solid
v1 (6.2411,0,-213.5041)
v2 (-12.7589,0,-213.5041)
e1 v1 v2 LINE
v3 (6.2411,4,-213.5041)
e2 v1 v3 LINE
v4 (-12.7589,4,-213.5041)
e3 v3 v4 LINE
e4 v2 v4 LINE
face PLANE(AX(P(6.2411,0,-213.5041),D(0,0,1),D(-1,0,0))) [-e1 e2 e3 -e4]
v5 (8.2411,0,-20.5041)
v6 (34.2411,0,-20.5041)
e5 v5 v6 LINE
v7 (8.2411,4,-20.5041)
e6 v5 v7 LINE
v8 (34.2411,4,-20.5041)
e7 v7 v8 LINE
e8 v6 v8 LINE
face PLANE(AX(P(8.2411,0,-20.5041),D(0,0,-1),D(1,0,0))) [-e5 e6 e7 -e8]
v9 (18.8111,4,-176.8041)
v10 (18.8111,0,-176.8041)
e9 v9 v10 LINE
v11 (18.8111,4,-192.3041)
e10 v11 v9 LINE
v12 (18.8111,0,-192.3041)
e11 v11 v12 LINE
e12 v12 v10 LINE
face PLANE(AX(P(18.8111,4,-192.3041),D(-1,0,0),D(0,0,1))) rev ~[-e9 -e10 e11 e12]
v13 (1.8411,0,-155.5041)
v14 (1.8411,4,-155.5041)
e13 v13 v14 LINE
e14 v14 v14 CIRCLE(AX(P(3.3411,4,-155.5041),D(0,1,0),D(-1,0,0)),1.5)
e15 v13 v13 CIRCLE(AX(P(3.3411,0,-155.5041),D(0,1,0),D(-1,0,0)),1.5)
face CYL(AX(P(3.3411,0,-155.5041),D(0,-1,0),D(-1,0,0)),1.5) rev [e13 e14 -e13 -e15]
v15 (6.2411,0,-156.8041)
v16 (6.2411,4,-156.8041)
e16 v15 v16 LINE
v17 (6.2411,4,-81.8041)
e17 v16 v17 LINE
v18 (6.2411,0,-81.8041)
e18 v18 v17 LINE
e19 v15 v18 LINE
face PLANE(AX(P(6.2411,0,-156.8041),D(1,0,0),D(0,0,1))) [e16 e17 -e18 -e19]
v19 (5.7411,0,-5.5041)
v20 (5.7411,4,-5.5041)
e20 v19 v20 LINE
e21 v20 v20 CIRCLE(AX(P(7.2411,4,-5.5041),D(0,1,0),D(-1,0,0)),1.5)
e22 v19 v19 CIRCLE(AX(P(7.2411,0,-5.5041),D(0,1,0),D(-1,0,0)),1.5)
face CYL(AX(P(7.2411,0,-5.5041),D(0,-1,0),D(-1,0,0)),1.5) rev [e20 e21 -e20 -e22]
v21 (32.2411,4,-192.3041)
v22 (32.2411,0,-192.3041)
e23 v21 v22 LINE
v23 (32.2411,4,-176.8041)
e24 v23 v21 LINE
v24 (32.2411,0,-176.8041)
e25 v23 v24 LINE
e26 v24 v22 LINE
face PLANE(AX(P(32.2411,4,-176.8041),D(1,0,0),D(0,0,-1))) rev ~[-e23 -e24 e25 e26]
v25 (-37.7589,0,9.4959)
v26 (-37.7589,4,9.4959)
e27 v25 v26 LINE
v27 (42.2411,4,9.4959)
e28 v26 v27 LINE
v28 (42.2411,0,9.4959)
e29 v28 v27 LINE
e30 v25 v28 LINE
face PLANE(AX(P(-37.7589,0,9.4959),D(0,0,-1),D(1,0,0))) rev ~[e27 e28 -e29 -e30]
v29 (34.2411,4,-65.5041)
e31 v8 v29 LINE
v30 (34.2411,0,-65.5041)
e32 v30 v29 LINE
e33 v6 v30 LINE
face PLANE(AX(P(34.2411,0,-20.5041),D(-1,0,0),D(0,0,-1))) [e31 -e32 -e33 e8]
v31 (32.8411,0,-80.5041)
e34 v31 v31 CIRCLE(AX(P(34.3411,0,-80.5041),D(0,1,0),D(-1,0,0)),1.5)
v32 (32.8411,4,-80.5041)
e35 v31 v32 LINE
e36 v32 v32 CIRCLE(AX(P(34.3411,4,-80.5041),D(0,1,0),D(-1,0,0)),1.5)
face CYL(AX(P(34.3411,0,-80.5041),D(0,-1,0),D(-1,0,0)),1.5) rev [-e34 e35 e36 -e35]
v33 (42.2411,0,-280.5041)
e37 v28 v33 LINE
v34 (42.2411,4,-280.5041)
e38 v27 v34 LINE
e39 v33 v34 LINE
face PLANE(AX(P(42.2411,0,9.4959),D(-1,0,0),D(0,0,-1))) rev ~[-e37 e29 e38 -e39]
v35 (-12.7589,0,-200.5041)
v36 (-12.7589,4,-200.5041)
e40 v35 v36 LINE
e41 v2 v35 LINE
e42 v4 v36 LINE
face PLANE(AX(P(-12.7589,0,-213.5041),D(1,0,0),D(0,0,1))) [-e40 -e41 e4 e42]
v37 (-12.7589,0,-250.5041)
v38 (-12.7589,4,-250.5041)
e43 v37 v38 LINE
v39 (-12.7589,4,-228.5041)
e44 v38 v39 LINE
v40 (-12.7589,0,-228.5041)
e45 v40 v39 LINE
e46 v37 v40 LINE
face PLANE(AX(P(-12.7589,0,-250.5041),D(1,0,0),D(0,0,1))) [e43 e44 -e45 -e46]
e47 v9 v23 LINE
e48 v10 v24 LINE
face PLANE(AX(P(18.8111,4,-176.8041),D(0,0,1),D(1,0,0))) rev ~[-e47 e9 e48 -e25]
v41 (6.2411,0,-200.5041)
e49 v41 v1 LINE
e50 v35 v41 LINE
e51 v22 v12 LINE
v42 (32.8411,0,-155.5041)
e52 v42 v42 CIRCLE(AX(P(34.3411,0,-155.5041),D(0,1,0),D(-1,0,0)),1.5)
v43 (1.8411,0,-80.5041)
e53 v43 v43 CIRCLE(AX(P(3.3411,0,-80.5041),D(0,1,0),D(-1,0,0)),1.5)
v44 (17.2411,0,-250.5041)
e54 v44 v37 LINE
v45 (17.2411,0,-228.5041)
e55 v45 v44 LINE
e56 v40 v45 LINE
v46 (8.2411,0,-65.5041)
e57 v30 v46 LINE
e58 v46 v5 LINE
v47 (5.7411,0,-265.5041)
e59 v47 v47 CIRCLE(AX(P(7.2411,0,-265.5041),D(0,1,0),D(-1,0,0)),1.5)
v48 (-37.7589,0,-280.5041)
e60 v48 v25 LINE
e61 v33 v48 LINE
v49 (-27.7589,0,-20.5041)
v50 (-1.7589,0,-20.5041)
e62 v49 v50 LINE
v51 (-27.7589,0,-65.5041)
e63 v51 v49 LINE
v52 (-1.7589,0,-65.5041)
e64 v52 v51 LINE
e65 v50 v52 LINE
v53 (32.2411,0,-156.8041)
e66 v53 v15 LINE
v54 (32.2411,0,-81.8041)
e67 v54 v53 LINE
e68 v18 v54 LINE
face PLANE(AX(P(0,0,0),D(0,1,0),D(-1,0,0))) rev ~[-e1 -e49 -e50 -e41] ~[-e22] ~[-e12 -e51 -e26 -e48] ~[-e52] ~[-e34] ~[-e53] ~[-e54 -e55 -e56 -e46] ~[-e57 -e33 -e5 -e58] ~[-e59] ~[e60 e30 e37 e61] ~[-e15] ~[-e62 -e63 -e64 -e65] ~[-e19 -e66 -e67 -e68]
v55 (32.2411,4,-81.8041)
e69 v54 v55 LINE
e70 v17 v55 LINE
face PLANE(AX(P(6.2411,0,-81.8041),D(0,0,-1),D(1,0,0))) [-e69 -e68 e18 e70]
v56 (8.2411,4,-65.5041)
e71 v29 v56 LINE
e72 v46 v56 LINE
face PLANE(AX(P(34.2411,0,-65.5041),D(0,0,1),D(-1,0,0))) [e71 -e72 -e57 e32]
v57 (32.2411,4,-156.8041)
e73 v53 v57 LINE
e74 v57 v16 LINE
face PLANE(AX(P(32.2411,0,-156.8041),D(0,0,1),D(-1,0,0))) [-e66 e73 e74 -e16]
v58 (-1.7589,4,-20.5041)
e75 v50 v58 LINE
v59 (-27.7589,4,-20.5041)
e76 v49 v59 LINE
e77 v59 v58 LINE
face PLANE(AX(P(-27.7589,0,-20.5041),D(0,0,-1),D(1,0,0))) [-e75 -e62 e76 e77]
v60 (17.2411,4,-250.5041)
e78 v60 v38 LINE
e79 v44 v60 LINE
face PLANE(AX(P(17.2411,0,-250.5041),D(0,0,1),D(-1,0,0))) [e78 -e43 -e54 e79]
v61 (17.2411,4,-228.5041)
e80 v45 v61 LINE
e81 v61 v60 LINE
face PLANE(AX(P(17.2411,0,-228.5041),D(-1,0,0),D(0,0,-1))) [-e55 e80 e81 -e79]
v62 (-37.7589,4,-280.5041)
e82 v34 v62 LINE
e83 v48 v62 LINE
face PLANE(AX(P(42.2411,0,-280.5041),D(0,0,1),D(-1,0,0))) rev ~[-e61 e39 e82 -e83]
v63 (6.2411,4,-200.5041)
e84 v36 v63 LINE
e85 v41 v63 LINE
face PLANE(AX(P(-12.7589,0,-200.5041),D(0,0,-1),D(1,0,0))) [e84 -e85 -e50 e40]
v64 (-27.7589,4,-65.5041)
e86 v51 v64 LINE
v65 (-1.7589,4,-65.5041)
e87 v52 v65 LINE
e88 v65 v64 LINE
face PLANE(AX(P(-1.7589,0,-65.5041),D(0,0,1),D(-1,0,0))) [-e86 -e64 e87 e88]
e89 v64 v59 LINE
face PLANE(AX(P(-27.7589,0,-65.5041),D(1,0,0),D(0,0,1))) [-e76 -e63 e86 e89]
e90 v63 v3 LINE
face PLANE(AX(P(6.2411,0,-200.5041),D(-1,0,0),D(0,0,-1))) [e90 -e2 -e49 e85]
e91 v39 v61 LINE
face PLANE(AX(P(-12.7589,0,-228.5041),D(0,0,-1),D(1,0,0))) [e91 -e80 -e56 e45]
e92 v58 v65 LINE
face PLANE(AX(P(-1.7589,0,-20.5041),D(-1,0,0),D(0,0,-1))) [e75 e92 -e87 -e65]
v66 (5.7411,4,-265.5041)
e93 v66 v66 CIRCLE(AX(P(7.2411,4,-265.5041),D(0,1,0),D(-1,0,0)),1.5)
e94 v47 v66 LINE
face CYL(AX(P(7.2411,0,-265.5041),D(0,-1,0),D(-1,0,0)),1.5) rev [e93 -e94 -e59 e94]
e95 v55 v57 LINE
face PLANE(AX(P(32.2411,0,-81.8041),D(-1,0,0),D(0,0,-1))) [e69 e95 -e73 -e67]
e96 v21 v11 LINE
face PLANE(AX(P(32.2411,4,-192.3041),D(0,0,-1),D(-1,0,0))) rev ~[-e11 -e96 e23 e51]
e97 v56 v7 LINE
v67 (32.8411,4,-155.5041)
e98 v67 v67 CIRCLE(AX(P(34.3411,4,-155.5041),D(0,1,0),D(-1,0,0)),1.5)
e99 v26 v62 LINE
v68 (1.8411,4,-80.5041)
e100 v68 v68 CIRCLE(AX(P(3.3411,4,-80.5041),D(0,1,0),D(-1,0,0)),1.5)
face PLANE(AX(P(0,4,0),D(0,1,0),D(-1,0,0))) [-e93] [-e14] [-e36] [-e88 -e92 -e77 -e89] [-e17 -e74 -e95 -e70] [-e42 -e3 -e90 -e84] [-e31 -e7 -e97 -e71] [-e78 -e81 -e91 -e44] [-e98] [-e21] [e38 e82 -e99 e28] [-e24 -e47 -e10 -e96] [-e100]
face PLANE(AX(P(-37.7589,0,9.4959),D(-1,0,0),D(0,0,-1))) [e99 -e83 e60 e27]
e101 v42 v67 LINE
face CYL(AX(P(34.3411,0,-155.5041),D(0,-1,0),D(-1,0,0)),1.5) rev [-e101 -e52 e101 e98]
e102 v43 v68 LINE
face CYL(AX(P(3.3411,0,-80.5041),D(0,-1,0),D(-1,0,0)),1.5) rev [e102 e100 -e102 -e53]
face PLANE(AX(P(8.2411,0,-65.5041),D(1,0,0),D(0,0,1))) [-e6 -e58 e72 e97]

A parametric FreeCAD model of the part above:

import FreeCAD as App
import Part
import Sketcher

doc = App.newDocument("Part")
params = doc.addObject("Spreadsheet::Sheet", "Params")
for row, (alias, value) in enumerate([
    ("sketch1_diameter", "3 mm"),
    ("sketch1_width", "80 mm"),
    ("sketch1_width2", "30 mm"),
    ("sketch1_width3", "19 mm"),
    ("sketch1_width4", "26 mm"),
    ("pad1_length", "4 mm"),
    ("sketch2_height", "15.5 mm"),
    ("sketch2_width", "13.43 mm"),
], start=1):
    params.set(f"A{row}", alias)
    params.set(f"B{row}", "=" + value)
    params.setAlias(f"B{row}", alias)

body = doc.addObject("PartDesign::Body", "Body")

# Sketch on XZ plane
sketch1 = body.newObject("Sketcher::SketchObject", "Sketch")
sketch1.AttachmentSupport = (doc.getObject("XZ_Plane"), [""])
sketch1.MapMode = "FlatFace"
sketch1.addGeometry([
    Part.LineSegment(App.Vector(-37.7589, -280.5041, 0), App.Vector(-37.7589, 9.4959, 0)),  # 0
    Part.LineSegment(App.Vector(-37.7589, 9.4959, 0), App.Vector(42.2411, 9.4959, 0)),  # 1
    Part.LineSegment(App.Vector(42.2411, 9.4959, 0), App.Vector(42.2411, -280.5041, 0)),  # 2
    Part.LineSegment(App.Vector(42.2411, -280.5041, 0), App.Vector(-37.7589, -280.5041, 0)),  # 3
    Part.Circle(App.Vector(7.2411, -265.5041, 0), App.Vector(0, 0, 1), 1.5),  # 4
    Part.Circle(App.Vector(34.3411, -155.5041, 0), App.Vector(0, 0, 1), 1.5),  # 5
    Part.Circle(App.Vector(3.3411, -155.5041, 0), App.Vector(0, 0, 1), 1.5),  # 6
    Part.LineSegment(App.Vector(17.2411, -228.5041, 0), App.Vector(-12.7589, -228.5041, 0)),  # 7
    Part.LineSegment(App.Vector(-12.7589, -228.5041, 0), App.Vector(-12.7589, -250.5041, 0)),  # 8
    Part.LineSegment(App.Vector(-12.7589, -250.5041, 0), App.Vector(17.2411, -250.5041, 0)),  # 9
    Part.LineSegment(App.Vector(17.2411, -250.5041, 0), App.Vector(17.2411, -228.5041, 0)),  # 10
    Part.LineSegment(App.Vector(6.2411, -200.5041, 0), App.Vector(-12.7589, -200.5041, 0)),  # 11
    Part.LineSegment(App.Vector(-12.7589, -200.5041, 0), App.Vector(-12.7589, -213.5041, 0)),  # 12
    Part.LineSegment(App.Vector(-12.7589, -213.5041, 0), App.Vector(6.2411, -213.5041, 0)),  # 13
    Part.LineSegment(App.Vector(6.2411, -213.5041, 0), App.Vector(6.2411, -200.5041, 0)),  # 14
    Part.Circle(App.Vector(34.3411, -80.5041, 0), App.Vector(0, 0, 1), 1.5),  # 15
    Part.LineSegment(App.Vector(32.2411, -81.8041, 0), App.Vector(6.2411, -81.8041, 0)),  # 16
    Part.LineSegment(App.Vector(6.2411, -81.8041, 0), App.Vector(6.2411, -156.8041, 0)),  # 17
    Part.LineSegment(App.Vector(6.2411, -156.8041, 0), App.Vector(32.2411, -156.8041, 0)),  # 18
    Part.LineSegment(App.Vector(32.2411, -156.8041, 0), App.Vector(32.2411, -81.8041, 0)),  # 19
    Part.Circle(App.Vector(3.3411, -80.5041, 0), App.Vector(0, 0, 1), 1.5),  # 20
    Part.LineSegment(App.Vector(34.2411, -20.5041, 0), App.Vector(8.2411, -20.5041, 0)),  # 21
    Part.LineSegment(App.Vector(8.2411, -20.5041, 0), App.Vector(8.2411, -65.5041, 0)),  # 22
    Part.LineSegment(App.Vector(8.2411, -65.5041, 0), App.Vector(34.2411, -65.5041, 0)),  # 23
    Part.LineSegment(App.Vector(34.2411, -65.5041, 0), App.Vector(34.2411, -20.5041, 0)),  # 24
    Part.Circle(App.Vector(7.2411, -5.5041, 0), App.Vector(0, 0, 1), 1.5),  # 25
    Part.LineSegment(App.Vector(-1.7589, -20.5041, 0), App.Vector(-27.7589, -20.5041, 0)),  # 26
    Part.LineSegment(App.Vector(-27.7589, -20.5041, 0), App.Vector(-27.7589, -65.5041, 0)),  # 27
    Part.LineSegment(App.Vector(-27.7589, -65.5041, 0), App.Vector(-1.7589, -65.5041, 0)),  # 28
    Part.LineSegment(App.Vector(-1.7589, -65.5041, 0), App.Vector(-1.7589, -20.5041, 0)),  # 29
], False)
sketch1.addConstraint([
    Sketcher.Constraint("Coincident", 0, 2, 1, 1),
    Sketcher.Constraint("Coincident", 1, 2, 2, 1),
    Sketcher.Constraint("Coincident", 2, 2, 3, 1),
    Sketcher.Constraint("Coincident", 3, 2, 0, 1),
    Sketcher.Constraint("Coincident", 7, 2, 8, 1),
    Sketcher.Constraint("Coincident", 8, 2, 9, 1),
    Sketcher.Constraint("Coincident", 9, 2, 10, 1),
    Sketcher.Constraint("Coincident", 10, 2, 7, 1),
    Sketcher.Constraint("Coincident", 11, 2, 12, 1),
    Sketcher.Constraint("Coincident", 12, 2, 13, 1),
    Sketcher.Constraint("Coincident", 13, 2, 14, 1),
    Sketcher.Constraint("Coincident", 14, 2, 11, 1),
    Sketcher.Constraint("Coincident", 16, 2, 17, 1),
    Sketcher.Constraint("Coincident", 17, 2, 18, 1),
    Sketcher.Constraint("Coincident", 18, 2, 19, 1),
    Sketcher.Constraint("Coincident", 19, 2, 16, 1),
    Sketcher.Constraint("Coincident", 21, 2, 22, 1),
    Sketcher.Constraint("Coincident", 22, 2, 23, 1),
    Sketcher.Constraint("Coincident", 23, 2, 24, 1),
    Sketcher.Constraint("Coincident", 24, 2, 21, 1),
    Sketcher.Constraint("Coincident", 26, 2, 27, 1),
    Sketcher.Constraint("Coincident", 27, 2, 28, 1),
    Sketcher.Constraint("Coincident", 28, 2, 29, 1),
    Sketcher.Constraint("Coincident", 29, 2, 26, 1),
    Sketcher.Constraint("Vertical", 0),
    Sketcher.Constraint("Horizontal", 1),
    Sketcher.Constraint("Vertical", 2),
    Sketcher.Constraint("Horizontal", 3),
    Sketcher.Constraint("Horizontal", 7),
    Sketcher.Constraint("Vertical", 8),
    Sketcher.Constraint("Horizontal", 9),
    Sketcher.Constraint("Vertical", 10),
    Sketcher.Constraint("Horizontal", 11),
    Sketcher.Constraint("Vertical", 12),
    Sketcher.Constraint("Horizontal", 13),
    Sketcher.Constraint("Vertical", 14),
    Sketcher.Constraint("Horizontal", 16),
    Sketcher.Constraint("Vertical", 17),
    Sketcher.Constraint("Horizontal", 18),
    Sketcher.Constraint("Vertical", 19),
    Sketcher.Constraint("Horizontal", 21),
    Sketcher.Constraint("Vertical", 22),
    Sketcher.Constraint("Horizontal", 23),
    Sketcher.Constraint("Vertical", 24),
    Sketcher.Constraint("Horizontal", 26),
    Sketcher.Constraint("Vertical", 27),
    Sketcher.Constraint("Horizontal", 28),
    Sketcher.Constraint("Vertical", 29),
    Sketcher.Constraint("Equal", 4, 5),
    Sketcher.Constraint("Equal", 5, 6),
    Sketcher.Constraint("Equal", 6, 15),
    Sketcher.Constraint("Equal", 15, 20),
    Sketcher.Constraint("Equal", 20, 25),
    Sketcher.Constraint("Horizontal", 5, 3, 6, 3),
    Sketcher.Constraint("Horizontal", 15, 3, 20, 3),
    Sketcher.Constraint("Horizontal", 24, 2, 26, 2),
    Sketcher.Constraint("Horizontal", 23, 2, 27, 2),
    Sketcher.Constraint("Vertical", 5, 3, 15, 3),
    Sketcher.Constraint("Vertical", 6, 3, 20, 3),
    Sketcher.Constraint("Vertical", 4, 3, 25, 3),
    Sketcher.Constraint("Vertical", 8, 2, 11, 2),
    Sketcher.Constraint("Vertical", 14, 2, 16, 2),
    Sketcher.Constraint("Equal", 18, 21),
    Sketcher.Constraint("Equal", 23, 26),
    Sketcher.Constraint("Diameter", 4, 3.0),
    Sketcher.Constraint("DistanceX", 1, 1, 1, 2, 80.0),
    Sketcher.Constraint("DistanceX", 7, 2, 7, 1, 30.0),
    Sketcher.Constraint("DistanceX", 11, 2, 11, 1, 19.0),
    Sketcher.Constraint("DistanceX", 16, 2, 16, 1, 26.0),
    Sketcher.Constraint("DistanceY", 0, 1, 0, 2, 290.0),
    Sketcher.Constraint("DistanceY", 8, 2, 8, 1, 22.0),
    Sketcher.Constraint("DistanceY", 12, 2, 12, 1, 13.0),
    Sketcher.Constraint("DistanceY", 17, 2, 17, 1, 75.0),
    Sketcher.Constraint("DistanceY", 22, 2, 22, 1, 45.0),
    Sketcher.Constraint("DistanceX", 6, 3, 5, 3, 31.0),
    Sketcher.Constraint("DistanceY", 5, 3, 15, 3, 75.0),
    Sketcher.Constraint("DistanceY", 20, 3, 25, 3, 75.0),
    Sketcher.Constraint("DistanceX", 0, 2, 25, 3, 45.0),
    Sketcher.Constraint("DistanceY", 25, 3, 0, 2, 15.0),
    Sketcher.Constraint("DistanceY", 2, 2, 4, 3, 15.0),
    Sketcher.Constraint("DistanceX", 3, 2, 7, 2, 25.0),
    Sketcher.Constraint("DistanceY", 4, 3, 8, 2, 15.0),
    Sketcher.Constraint("DistanceY", 11, 2, 6, 3, 45.0),
    Sketcher.Constraint("DistanceY", 21, 2, 25, 3, 15.0),
    Sketcher.Constraint("DistanceX", 0, 2, 26, 2, 10.0),
    Sketcher.Constraint("DistanceX", 28, 2, 22, 2, 10.0),
    Sketcher.Constraint("DistanceX", 20, 3, 16, 2, 2.9),
    Sketcher.Constraint("DistanceY", 16, 2, 20, 3, 1.3),
    Sketcher.Constraint("DistanceX", -1, 1, 4, 3, 7.241),
    Sketcher.Constraint("DistanceY", 4, 3, -1, 1, 265.504),
])
sketch1.setExpression("Constraints[64]", "Params.sketch1_diameter")
sketch1.setExpression("Constraints[65]", "Params.sketch1_width")
sketch1.setExpression("Constraints[66]", "Params.sketch1_width2")
sketch1.setExpression("Constraints[67]", "Params.sketch1_width3")
sketch1.setExpression("Constraints[68]", "Params.sketch1_width4")
pad1 = body.newObject("PartDesign::Pad", "Pad")
pad1.Profile = sketch1
pad1.setExpression("Length", "Params.pad1_length")
pad1.Reversed = True

# Sketch on XZ plane
sketch2 = body.newObject("Sketcher::SketchObject", "Sketch001")
sketch2.AttachmentSupport = (doc.getObject("XZ_Plane"), [""])
sketch2.MapMode = "FlatFace"
sketch2.AttachmentOffset = App.Placement(App.Vector(0, 0, -4), App.Rotation())
sketch2.addGeometry([
    Part.LineSegment(App.Vector(18.8111, -192.3041, 0), App.Vector(18.8111, -176.8041, 0)),
    Part.LineSegment(App.Vector(18.8111, -176.8041, 0), App.Vector(32.2411, -176.8041, 0)),
    Part.LineSegment(App.Vector(32.2411, -176.8041, 0), App.Vector(32.2411, -192.3041, 0)),
    Part.LineSegment(App.Vector(32.2411, -192.3041, 0), App.Vector(18.8111, -192.3041, 0)),
], False)
sketch2.addConstraint([
    Sketcher.Constraint("Coincident", 0, 2, 1, 1),
    Sketcher.Constraint("Coincident", 1, 2, 2, 1),
    Sketcher.Constraint("Coincident", 2, 2, 3, 1),
    Sketcher.Constraint("Coincident", 3, 2, 0, 1),
    Sketcher.Constraint("Vertical", 0),
    Sketcher.Constraint("Horizontal", 1),
    Sketcher.Constraint("Vertical", 2),
    Sketcher.Constraint("Horizontal", 3),
    Sketcher.Constraint("DistanceY", 0, 1, 0, 2, 15.5),
    Sketcher.Constraint("DistanceX", 1, 1, 1, 2, 13.43),
    Sketcher.Constraint("DistanceX", -1, 1, 0, 2, 18.811),
    Sketcher.Constraint("DistanceY", 0, 2, -1, 1, 176.804),
])
sketch2.setExpression("Constraints[8]", "Params.sketch2_height")
sketch2.setExpression("Constraints[9]", "Params.sketch2_width")
pocket1 = body.newObject("PartDesign::Pocket", "Pocket")
pocket1.Profile = sketch2
pocket1.Type = "ThroughAll"
pocket1.Reversed = True

doc.recompute()
